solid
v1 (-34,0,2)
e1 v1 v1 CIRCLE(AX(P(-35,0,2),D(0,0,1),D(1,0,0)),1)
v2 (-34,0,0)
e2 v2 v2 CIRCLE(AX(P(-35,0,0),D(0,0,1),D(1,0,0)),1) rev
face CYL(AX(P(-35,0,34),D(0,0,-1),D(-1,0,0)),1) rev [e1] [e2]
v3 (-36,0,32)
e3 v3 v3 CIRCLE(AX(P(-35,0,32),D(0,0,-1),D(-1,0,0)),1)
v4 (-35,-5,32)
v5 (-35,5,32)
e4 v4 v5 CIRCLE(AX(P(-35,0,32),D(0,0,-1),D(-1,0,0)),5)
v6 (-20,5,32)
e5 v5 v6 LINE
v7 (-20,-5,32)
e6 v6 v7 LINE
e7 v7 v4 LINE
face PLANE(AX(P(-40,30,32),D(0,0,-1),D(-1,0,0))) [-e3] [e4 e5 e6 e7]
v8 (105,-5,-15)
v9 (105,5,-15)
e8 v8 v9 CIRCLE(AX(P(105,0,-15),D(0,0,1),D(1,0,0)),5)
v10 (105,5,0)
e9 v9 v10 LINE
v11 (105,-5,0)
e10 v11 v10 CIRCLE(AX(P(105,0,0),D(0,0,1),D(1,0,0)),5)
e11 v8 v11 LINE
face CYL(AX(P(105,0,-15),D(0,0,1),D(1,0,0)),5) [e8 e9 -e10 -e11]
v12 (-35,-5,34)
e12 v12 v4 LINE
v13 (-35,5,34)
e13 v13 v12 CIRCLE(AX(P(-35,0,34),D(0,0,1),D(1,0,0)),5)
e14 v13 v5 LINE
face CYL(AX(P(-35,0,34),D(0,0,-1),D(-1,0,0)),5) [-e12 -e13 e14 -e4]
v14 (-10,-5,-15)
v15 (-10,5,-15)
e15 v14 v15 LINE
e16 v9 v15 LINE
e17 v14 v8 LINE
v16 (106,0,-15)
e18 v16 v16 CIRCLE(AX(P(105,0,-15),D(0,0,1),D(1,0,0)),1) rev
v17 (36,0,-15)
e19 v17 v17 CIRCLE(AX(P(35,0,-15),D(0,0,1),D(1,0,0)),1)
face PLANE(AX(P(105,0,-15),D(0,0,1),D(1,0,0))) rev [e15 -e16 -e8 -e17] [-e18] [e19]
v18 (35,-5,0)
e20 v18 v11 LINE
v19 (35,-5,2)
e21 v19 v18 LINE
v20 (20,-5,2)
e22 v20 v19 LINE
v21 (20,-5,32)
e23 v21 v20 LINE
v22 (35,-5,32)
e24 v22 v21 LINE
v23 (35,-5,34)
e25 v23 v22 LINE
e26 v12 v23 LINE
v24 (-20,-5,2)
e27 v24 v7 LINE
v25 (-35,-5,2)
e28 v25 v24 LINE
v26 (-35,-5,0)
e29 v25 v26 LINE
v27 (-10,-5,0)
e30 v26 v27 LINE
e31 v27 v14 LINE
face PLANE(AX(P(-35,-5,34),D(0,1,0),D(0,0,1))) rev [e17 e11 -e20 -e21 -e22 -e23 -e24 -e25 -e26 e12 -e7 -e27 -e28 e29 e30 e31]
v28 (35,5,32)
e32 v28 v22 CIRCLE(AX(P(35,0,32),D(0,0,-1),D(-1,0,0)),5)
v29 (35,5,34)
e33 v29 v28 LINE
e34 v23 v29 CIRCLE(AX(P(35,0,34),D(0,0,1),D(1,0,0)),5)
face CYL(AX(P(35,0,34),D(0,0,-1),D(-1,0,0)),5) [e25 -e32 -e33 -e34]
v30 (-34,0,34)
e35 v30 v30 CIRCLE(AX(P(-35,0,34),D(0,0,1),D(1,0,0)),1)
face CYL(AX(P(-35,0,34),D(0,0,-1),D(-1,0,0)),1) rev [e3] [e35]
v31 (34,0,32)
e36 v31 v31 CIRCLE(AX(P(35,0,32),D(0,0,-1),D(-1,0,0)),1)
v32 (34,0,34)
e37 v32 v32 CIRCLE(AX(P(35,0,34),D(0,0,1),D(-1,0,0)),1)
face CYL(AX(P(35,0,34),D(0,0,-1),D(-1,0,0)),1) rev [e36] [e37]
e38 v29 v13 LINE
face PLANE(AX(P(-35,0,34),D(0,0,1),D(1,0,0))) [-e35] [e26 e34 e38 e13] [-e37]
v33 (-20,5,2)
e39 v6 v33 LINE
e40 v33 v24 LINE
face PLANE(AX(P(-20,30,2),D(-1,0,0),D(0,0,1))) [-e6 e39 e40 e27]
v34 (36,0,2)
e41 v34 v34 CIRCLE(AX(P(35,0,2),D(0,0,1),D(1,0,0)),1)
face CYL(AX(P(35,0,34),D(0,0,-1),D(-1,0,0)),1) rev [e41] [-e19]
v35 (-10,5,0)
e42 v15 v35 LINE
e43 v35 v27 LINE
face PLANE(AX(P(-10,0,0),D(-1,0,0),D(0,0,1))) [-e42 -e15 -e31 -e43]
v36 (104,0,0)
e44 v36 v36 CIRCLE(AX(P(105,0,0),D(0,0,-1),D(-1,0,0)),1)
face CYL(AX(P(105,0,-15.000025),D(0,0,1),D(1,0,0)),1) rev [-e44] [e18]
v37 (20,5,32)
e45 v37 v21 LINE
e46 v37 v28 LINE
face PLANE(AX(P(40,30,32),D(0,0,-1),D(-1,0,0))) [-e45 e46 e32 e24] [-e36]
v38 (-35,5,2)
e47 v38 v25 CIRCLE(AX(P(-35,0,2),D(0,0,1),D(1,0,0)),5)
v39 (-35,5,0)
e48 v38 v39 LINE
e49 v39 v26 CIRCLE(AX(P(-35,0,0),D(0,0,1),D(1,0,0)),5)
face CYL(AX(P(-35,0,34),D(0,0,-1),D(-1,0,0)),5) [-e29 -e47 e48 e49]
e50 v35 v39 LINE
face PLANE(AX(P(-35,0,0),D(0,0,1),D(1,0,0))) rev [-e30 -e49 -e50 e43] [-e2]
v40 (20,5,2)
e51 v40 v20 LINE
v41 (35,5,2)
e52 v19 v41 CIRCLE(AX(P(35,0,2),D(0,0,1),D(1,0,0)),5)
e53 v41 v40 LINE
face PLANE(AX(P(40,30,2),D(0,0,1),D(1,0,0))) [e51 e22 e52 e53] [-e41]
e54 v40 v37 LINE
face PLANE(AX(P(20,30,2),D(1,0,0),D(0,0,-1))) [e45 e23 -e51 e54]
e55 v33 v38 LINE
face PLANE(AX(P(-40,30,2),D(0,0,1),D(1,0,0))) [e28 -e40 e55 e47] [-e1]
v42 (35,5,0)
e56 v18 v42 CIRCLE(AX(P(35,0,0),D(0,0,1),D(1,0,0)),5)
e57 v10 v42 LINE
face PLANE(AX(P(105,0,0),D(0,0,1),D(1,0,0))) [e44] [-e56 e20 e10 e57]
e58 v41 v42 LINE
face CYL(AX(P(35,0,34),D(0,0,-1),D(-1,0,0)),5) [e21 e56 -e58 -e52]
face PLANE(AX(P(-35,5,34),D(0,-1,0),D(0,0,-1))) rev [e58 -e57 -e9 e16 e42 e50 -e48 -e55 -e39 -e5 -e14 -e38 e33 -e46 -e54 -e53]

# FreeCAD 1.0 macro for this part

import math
import FreeCAD as App
import Part
import Sketcher

doc = App.newDocument("Part")
body = doc.addObject("PartDesign::Body", "Body")

# Sketch on XY plane
sketch1 = body.newObject("Sketcher::SketchObject", "Sketch")
sketch1.AttachmentSupport = (doc.getObject("XY_Plane"), [""])
sketch1.MapMode = "FlatFace"
sketch1.addGeometry([
    Part.LineSegment(App.Vector(35, 5, 0), App.Vector(-35, 5, 0)),
    Part.ArcOfCircle(Part.Circle(App.Vector(-35, 0, 0), App.Vector(0, 0, 1), 5), math.radians(90), math.radians(270)),
    Part.LineSegment(App.Vector(-35, -5, 0), App.Vector(35, -5, 0)),
    Part.ArcOfCircle(Part.Circle(App.Vector(35, 0, 0), App.Vector(0, 0, 1), 5), math.radians(-90), math.radians(90)),
], False)
sketch1.addConstraint([
    Sketcher.Constraint("Tangent", 0, 2, 1, 1),
    Sketcher.Constraint("Tangent", 1, 2, 2, 1),
    Sketcher.Constraint("Tangent", 2, 2, 3, 1),
    Sketcher.Constraint("Tangent", 3, 2, 0, 1),
    Sketcher.Constraint("Horizontal", 0),
    Sketcher.Constraint("Horizontal", 2),
    Sketcher.Constraint("Symmetric", 1, 3, 3, 3, -1, 1),
    Sketcher.Constraint("Radius", 1, 5.0),
    Sketcher.Constraint("DistanceX", 0, 2, 0, 1, 70.0),
])
pad1 = body.newObject("PartDesign::Pad", "Pad")
pad1.Profile = sketch1
pad1.Length = 34

# Sketch on XY plane
sketch2 = body.newObject("Sketcher::SketchObject", "Sketch001")
sketch2.AttachmentSupport = (doc.getObject("XY_Plane"), [""])
sketch2.MapMode = "FlatFace"
sketch2.addGeometry([
    Part.Circle(App.Vector(-35, 0, 0), App.Vector(0, 0, 1), 1),
    Part.Circle(App.Vector(35, 0, 0), App.Vector(0, 0, 1), 1),
], False)
sketch2.addConstraint([
    Sketcher.Constraint("Equal", 0, 1),
    Sketcher.Constraint("Symmetric", 0, 3, 1, 3, -1, 1),
    Sketcher.Constraint("PointOnObject", 0, 3, -1),
    Sketcher.Constraint("Diameter", 0, 2.0),
    Sketcher.Constraint("DistanceX", 0, 3, -1, 1, 35.0),
])
pocket1 = body.newObject("PartDesign::Pocket", "Pocket")
pocket1.Profile = sketch2
pocket1.Type = "ThroughAll"
pocket1.Midplane = True

# Sketch on XZ plane
sketch3 = body.newObject("Sketcher::SketchObject", "Sketch002")
sketch3.AttachmentSupport = (doc.getObject("XZ_Plane"), [""])
sketch3.MapMode = "FlatFace"
sketch3.addGeometry([
    Part.LineSegment(App.Vector(-40, 2, 0), App.Vector(-40, 32, 0)),  # 0
    Part.LineSegment(App.Vector(-40, 32, 0), App.Vector(-20, 32, 0)),  # 1
    Part.LineSegment(App.Vector(-20, 32, 0), App.Vector(-20, 2, 0)),  # 2
    Part.LineSegment(App.Vector(-20, 2, 0), App.Vector(-40, 2, 0)),  # 3
    Part.LineSegment(App.Vector(20, 2, 0), App.Vector(20, 32, 0)),  # 4
    Part.LineSegment(App.Vector(20, 32, 0), App.Vector(40, 32, 0)),  # 5
    Part.LineSegment(App.Vector(40, 32, 0), App.Vector(40, 2, 0)),  # 6
    Part.LineSegment(App.Vector(40, 2, 0), App.Vector(20, 2, 0)),  # 7
], False)
sketch3.addConstraint([
    Sketcher.Constraint("Coincident", 0, 2, 1, 1),
    Sketcher.Constraint("Coincident", 1, 2, 2, 1),
    Sketcher.Constraint("Coincident", 2, 2, 3, 1),
    Sketcher.Constraint("Coincident", 3, 2, 0, 1),
    Sketcher.Constraint("Coincident", 4, 2, 5, 1),
    Sketcher.Constraint("Coincident", 5, 2, 6, 1),
    Sketcher.Constraint("Coincident", 6, 2, 7, 1),
    Sketcher.Constraint("Coincident", 7, 2, 4, 1),
    Sketcher.Constraint("Vertical", 0),
    Sketcher.Constraint("Horizontal", 1),
    Sketcher.Constraint("Vertical", 2),
    Sketcher.Constraint("Horizontal", 3),
    Sketcher.Constraint("Vertical", 4),
    Sketcher.Constraint("Horizontal", 5),
    Sketcher.Constraint("Vertical", 6),
    Sketcher.Constraint("Horizontal", 7),
    Sketcher.Constraint("Symmetric", 1, 2, 4, 2, -2),
    Sketcher.Constraint("Symmetric", 3, 2, 6, 2, -2),
    Sketcher.Constraint("DistanceX", 1, 1, 1, 2, 20.0),
    Sketcher.Constraint("DistanceY", 0, 1, 0, 2, 30.0),
    Sketcher.Constraint("DistanceX", 0, 2, -1, 1, 40.0),
    Sketcher.Constraint("DistanceY", -1, 1, 0, 2, 32.0),
])
pocket2 = body.newObject("PartDesign::Pocket", "Pocket001")
pocket2.Profile = sketch3
pocket2.Type = "ThroughAll"
pocket2.Midplane = True

# Sketch on XY plane
sketch4 = body.newObject("Sketcher::SketchObject", "Sketch003")
sketch4.AttachmentSupport = (doc.getObject("XY_Plane"), [""])
sketch4.MapMode = "FlatFace"
sketch4.addGeometry([
    Part.LineSegment(App.Vector(105, 5, 0), App.Vector(0, 5, 0)),
    Part.LineSegment(App.Vector(0, 5, 0), App.Vector(0, -5, 0)),
    Part.LineSegment(App.Vector(0, -5, 0), App.Vector(105, -5, 0)),
    Part.ArcOfCircle(Part.Circle(App.Vector(105, 0, 0), App.Vector(0, 0, 1), 5), math.radians(-90), math.radians(90)),
], False)
sketch4.addConstraint([
    Sketcher.Constraint("Coincident", 0, 2, 1, 1),
    Sketcher.Constraint("Coincident", 1, 2, 2, 1),
    Sketcher.Constraint("Tangent", 2, 2, 3, 1),
    Sketcher.Constraint("Tangent", 3, 2, 0, 1),
    Sketcher.Constraint("Horizontal", 0),
    Sketcher.Constraint("Vertical", 1),
    Sketcher.Constraint("Horizontal", 2),
    Sketcher.Constraint("Symmetric", 0, 2, 1, 2, -1, 1),
    Sketcher.Constraint("Radius", 3, 5.0),
    Sketcher.Constraint("DistanceX", 0, 2, 0, 1, 105.0),
])
pad2 = body.newObject("PartDesign::Pad", "Pad001")
pad2.Profile = sketch4
pad2.Length = 15
pad2.Reversed = True

# Sketch on XY plane
sketch5 = body.newObject("Sketcher::SketchObject", "Sketch004")
sketch5.AttachmentSupport = (doc.getObject("XY_Plane"), [""])
sketch5.MapMode = "FlatFace"
sketch5.addGeometry([
    Part.Circle(App.Vector(35, 0, 0), App.Vector(0, 0, 1), 1),
    Part.Circle(App.Vector(105, 0, 0), App.Vector(0, 0, 1), 1),
], False)
sketch5.addConstraint([
    Sketcher.Constraint("Equal", 0, 1),
    Sketcher.Constraint("PointOnObject", 0, 3, -1),
    Sketcher.Constraint("PointOnObject", 1, 3, -1),
    Sketcher.Constraint("Diameter", 0, 2.0),
    Sketcher.Constraint("DistanceX", -1, 1, 0, 3, 35.0),
    Sketcher.Constraint("DistanceX", -1, 1, 1, 3, 105.0),
])
pocket3 = body.newObject("PartDesign::Pocket", "Pocket002")
pocket3.Profile = sketch5
pocket3.Type = "ThroughAll"

# Sketch on YZ plane
sketch6 = body.newObject("Sketcher::SketchObject", "Sketch005")
sketch6.AttachmentSupport = (doc.getObject("YZ_Plane"), [""])
sketch6.MapMode = "FlatFace"
sketch6.addGeometry([
    Part.LineSegment(App.Vector(5, 0, 0), App.Vector(-5, 0, 0)),
    Part.LineSegment(App.Vector(-5, 0, 0), App.Vector(-5, -15, 0)),
    Part.LineSegment(App.Vector(-5, -15, 0), App.Vector(5, -15, 0)),
    Part.LineSegment(App.Vector(5, -15, 0), App.Vector(5, 0, 0)),
], False)
sketch6.addConstraint([
    Sketcher.Constraint("Coincident", 0, 2, 1, 1),
    Sketcher.Constraint("Coincident", 1, 2, 2, 1),
    Sketcher.Constraint("Coincident", 2, 2, 3, 1),
    Sketcher.Constraint("Coincident", 3, 2, 0, 1),
    Sketcher.Constraint("Horizontal", 0),
    Sketcher.Constraint("Vertical", 1),
    Sketcher.Constraint("Horizontal", 2),
    Sketcher.Constraint("Vertical", 3),
    Sketcher.Constraint("Symmetric", 0, 2, 3, 2, -1, 1),
    Sketcher.Constraint("DistanceX", 0, 2, 0, 1, 10.0),
    Sketcher.Constraint("DistanceY", 1, 2, 1, 1, 15.0),
])
pad3 = body.newObject("PartDesign::Pad", "Pad002")
pad3.Profile = sketch6
pad3.Length = 10
pad3.Reversed = True

doc.recompute()
